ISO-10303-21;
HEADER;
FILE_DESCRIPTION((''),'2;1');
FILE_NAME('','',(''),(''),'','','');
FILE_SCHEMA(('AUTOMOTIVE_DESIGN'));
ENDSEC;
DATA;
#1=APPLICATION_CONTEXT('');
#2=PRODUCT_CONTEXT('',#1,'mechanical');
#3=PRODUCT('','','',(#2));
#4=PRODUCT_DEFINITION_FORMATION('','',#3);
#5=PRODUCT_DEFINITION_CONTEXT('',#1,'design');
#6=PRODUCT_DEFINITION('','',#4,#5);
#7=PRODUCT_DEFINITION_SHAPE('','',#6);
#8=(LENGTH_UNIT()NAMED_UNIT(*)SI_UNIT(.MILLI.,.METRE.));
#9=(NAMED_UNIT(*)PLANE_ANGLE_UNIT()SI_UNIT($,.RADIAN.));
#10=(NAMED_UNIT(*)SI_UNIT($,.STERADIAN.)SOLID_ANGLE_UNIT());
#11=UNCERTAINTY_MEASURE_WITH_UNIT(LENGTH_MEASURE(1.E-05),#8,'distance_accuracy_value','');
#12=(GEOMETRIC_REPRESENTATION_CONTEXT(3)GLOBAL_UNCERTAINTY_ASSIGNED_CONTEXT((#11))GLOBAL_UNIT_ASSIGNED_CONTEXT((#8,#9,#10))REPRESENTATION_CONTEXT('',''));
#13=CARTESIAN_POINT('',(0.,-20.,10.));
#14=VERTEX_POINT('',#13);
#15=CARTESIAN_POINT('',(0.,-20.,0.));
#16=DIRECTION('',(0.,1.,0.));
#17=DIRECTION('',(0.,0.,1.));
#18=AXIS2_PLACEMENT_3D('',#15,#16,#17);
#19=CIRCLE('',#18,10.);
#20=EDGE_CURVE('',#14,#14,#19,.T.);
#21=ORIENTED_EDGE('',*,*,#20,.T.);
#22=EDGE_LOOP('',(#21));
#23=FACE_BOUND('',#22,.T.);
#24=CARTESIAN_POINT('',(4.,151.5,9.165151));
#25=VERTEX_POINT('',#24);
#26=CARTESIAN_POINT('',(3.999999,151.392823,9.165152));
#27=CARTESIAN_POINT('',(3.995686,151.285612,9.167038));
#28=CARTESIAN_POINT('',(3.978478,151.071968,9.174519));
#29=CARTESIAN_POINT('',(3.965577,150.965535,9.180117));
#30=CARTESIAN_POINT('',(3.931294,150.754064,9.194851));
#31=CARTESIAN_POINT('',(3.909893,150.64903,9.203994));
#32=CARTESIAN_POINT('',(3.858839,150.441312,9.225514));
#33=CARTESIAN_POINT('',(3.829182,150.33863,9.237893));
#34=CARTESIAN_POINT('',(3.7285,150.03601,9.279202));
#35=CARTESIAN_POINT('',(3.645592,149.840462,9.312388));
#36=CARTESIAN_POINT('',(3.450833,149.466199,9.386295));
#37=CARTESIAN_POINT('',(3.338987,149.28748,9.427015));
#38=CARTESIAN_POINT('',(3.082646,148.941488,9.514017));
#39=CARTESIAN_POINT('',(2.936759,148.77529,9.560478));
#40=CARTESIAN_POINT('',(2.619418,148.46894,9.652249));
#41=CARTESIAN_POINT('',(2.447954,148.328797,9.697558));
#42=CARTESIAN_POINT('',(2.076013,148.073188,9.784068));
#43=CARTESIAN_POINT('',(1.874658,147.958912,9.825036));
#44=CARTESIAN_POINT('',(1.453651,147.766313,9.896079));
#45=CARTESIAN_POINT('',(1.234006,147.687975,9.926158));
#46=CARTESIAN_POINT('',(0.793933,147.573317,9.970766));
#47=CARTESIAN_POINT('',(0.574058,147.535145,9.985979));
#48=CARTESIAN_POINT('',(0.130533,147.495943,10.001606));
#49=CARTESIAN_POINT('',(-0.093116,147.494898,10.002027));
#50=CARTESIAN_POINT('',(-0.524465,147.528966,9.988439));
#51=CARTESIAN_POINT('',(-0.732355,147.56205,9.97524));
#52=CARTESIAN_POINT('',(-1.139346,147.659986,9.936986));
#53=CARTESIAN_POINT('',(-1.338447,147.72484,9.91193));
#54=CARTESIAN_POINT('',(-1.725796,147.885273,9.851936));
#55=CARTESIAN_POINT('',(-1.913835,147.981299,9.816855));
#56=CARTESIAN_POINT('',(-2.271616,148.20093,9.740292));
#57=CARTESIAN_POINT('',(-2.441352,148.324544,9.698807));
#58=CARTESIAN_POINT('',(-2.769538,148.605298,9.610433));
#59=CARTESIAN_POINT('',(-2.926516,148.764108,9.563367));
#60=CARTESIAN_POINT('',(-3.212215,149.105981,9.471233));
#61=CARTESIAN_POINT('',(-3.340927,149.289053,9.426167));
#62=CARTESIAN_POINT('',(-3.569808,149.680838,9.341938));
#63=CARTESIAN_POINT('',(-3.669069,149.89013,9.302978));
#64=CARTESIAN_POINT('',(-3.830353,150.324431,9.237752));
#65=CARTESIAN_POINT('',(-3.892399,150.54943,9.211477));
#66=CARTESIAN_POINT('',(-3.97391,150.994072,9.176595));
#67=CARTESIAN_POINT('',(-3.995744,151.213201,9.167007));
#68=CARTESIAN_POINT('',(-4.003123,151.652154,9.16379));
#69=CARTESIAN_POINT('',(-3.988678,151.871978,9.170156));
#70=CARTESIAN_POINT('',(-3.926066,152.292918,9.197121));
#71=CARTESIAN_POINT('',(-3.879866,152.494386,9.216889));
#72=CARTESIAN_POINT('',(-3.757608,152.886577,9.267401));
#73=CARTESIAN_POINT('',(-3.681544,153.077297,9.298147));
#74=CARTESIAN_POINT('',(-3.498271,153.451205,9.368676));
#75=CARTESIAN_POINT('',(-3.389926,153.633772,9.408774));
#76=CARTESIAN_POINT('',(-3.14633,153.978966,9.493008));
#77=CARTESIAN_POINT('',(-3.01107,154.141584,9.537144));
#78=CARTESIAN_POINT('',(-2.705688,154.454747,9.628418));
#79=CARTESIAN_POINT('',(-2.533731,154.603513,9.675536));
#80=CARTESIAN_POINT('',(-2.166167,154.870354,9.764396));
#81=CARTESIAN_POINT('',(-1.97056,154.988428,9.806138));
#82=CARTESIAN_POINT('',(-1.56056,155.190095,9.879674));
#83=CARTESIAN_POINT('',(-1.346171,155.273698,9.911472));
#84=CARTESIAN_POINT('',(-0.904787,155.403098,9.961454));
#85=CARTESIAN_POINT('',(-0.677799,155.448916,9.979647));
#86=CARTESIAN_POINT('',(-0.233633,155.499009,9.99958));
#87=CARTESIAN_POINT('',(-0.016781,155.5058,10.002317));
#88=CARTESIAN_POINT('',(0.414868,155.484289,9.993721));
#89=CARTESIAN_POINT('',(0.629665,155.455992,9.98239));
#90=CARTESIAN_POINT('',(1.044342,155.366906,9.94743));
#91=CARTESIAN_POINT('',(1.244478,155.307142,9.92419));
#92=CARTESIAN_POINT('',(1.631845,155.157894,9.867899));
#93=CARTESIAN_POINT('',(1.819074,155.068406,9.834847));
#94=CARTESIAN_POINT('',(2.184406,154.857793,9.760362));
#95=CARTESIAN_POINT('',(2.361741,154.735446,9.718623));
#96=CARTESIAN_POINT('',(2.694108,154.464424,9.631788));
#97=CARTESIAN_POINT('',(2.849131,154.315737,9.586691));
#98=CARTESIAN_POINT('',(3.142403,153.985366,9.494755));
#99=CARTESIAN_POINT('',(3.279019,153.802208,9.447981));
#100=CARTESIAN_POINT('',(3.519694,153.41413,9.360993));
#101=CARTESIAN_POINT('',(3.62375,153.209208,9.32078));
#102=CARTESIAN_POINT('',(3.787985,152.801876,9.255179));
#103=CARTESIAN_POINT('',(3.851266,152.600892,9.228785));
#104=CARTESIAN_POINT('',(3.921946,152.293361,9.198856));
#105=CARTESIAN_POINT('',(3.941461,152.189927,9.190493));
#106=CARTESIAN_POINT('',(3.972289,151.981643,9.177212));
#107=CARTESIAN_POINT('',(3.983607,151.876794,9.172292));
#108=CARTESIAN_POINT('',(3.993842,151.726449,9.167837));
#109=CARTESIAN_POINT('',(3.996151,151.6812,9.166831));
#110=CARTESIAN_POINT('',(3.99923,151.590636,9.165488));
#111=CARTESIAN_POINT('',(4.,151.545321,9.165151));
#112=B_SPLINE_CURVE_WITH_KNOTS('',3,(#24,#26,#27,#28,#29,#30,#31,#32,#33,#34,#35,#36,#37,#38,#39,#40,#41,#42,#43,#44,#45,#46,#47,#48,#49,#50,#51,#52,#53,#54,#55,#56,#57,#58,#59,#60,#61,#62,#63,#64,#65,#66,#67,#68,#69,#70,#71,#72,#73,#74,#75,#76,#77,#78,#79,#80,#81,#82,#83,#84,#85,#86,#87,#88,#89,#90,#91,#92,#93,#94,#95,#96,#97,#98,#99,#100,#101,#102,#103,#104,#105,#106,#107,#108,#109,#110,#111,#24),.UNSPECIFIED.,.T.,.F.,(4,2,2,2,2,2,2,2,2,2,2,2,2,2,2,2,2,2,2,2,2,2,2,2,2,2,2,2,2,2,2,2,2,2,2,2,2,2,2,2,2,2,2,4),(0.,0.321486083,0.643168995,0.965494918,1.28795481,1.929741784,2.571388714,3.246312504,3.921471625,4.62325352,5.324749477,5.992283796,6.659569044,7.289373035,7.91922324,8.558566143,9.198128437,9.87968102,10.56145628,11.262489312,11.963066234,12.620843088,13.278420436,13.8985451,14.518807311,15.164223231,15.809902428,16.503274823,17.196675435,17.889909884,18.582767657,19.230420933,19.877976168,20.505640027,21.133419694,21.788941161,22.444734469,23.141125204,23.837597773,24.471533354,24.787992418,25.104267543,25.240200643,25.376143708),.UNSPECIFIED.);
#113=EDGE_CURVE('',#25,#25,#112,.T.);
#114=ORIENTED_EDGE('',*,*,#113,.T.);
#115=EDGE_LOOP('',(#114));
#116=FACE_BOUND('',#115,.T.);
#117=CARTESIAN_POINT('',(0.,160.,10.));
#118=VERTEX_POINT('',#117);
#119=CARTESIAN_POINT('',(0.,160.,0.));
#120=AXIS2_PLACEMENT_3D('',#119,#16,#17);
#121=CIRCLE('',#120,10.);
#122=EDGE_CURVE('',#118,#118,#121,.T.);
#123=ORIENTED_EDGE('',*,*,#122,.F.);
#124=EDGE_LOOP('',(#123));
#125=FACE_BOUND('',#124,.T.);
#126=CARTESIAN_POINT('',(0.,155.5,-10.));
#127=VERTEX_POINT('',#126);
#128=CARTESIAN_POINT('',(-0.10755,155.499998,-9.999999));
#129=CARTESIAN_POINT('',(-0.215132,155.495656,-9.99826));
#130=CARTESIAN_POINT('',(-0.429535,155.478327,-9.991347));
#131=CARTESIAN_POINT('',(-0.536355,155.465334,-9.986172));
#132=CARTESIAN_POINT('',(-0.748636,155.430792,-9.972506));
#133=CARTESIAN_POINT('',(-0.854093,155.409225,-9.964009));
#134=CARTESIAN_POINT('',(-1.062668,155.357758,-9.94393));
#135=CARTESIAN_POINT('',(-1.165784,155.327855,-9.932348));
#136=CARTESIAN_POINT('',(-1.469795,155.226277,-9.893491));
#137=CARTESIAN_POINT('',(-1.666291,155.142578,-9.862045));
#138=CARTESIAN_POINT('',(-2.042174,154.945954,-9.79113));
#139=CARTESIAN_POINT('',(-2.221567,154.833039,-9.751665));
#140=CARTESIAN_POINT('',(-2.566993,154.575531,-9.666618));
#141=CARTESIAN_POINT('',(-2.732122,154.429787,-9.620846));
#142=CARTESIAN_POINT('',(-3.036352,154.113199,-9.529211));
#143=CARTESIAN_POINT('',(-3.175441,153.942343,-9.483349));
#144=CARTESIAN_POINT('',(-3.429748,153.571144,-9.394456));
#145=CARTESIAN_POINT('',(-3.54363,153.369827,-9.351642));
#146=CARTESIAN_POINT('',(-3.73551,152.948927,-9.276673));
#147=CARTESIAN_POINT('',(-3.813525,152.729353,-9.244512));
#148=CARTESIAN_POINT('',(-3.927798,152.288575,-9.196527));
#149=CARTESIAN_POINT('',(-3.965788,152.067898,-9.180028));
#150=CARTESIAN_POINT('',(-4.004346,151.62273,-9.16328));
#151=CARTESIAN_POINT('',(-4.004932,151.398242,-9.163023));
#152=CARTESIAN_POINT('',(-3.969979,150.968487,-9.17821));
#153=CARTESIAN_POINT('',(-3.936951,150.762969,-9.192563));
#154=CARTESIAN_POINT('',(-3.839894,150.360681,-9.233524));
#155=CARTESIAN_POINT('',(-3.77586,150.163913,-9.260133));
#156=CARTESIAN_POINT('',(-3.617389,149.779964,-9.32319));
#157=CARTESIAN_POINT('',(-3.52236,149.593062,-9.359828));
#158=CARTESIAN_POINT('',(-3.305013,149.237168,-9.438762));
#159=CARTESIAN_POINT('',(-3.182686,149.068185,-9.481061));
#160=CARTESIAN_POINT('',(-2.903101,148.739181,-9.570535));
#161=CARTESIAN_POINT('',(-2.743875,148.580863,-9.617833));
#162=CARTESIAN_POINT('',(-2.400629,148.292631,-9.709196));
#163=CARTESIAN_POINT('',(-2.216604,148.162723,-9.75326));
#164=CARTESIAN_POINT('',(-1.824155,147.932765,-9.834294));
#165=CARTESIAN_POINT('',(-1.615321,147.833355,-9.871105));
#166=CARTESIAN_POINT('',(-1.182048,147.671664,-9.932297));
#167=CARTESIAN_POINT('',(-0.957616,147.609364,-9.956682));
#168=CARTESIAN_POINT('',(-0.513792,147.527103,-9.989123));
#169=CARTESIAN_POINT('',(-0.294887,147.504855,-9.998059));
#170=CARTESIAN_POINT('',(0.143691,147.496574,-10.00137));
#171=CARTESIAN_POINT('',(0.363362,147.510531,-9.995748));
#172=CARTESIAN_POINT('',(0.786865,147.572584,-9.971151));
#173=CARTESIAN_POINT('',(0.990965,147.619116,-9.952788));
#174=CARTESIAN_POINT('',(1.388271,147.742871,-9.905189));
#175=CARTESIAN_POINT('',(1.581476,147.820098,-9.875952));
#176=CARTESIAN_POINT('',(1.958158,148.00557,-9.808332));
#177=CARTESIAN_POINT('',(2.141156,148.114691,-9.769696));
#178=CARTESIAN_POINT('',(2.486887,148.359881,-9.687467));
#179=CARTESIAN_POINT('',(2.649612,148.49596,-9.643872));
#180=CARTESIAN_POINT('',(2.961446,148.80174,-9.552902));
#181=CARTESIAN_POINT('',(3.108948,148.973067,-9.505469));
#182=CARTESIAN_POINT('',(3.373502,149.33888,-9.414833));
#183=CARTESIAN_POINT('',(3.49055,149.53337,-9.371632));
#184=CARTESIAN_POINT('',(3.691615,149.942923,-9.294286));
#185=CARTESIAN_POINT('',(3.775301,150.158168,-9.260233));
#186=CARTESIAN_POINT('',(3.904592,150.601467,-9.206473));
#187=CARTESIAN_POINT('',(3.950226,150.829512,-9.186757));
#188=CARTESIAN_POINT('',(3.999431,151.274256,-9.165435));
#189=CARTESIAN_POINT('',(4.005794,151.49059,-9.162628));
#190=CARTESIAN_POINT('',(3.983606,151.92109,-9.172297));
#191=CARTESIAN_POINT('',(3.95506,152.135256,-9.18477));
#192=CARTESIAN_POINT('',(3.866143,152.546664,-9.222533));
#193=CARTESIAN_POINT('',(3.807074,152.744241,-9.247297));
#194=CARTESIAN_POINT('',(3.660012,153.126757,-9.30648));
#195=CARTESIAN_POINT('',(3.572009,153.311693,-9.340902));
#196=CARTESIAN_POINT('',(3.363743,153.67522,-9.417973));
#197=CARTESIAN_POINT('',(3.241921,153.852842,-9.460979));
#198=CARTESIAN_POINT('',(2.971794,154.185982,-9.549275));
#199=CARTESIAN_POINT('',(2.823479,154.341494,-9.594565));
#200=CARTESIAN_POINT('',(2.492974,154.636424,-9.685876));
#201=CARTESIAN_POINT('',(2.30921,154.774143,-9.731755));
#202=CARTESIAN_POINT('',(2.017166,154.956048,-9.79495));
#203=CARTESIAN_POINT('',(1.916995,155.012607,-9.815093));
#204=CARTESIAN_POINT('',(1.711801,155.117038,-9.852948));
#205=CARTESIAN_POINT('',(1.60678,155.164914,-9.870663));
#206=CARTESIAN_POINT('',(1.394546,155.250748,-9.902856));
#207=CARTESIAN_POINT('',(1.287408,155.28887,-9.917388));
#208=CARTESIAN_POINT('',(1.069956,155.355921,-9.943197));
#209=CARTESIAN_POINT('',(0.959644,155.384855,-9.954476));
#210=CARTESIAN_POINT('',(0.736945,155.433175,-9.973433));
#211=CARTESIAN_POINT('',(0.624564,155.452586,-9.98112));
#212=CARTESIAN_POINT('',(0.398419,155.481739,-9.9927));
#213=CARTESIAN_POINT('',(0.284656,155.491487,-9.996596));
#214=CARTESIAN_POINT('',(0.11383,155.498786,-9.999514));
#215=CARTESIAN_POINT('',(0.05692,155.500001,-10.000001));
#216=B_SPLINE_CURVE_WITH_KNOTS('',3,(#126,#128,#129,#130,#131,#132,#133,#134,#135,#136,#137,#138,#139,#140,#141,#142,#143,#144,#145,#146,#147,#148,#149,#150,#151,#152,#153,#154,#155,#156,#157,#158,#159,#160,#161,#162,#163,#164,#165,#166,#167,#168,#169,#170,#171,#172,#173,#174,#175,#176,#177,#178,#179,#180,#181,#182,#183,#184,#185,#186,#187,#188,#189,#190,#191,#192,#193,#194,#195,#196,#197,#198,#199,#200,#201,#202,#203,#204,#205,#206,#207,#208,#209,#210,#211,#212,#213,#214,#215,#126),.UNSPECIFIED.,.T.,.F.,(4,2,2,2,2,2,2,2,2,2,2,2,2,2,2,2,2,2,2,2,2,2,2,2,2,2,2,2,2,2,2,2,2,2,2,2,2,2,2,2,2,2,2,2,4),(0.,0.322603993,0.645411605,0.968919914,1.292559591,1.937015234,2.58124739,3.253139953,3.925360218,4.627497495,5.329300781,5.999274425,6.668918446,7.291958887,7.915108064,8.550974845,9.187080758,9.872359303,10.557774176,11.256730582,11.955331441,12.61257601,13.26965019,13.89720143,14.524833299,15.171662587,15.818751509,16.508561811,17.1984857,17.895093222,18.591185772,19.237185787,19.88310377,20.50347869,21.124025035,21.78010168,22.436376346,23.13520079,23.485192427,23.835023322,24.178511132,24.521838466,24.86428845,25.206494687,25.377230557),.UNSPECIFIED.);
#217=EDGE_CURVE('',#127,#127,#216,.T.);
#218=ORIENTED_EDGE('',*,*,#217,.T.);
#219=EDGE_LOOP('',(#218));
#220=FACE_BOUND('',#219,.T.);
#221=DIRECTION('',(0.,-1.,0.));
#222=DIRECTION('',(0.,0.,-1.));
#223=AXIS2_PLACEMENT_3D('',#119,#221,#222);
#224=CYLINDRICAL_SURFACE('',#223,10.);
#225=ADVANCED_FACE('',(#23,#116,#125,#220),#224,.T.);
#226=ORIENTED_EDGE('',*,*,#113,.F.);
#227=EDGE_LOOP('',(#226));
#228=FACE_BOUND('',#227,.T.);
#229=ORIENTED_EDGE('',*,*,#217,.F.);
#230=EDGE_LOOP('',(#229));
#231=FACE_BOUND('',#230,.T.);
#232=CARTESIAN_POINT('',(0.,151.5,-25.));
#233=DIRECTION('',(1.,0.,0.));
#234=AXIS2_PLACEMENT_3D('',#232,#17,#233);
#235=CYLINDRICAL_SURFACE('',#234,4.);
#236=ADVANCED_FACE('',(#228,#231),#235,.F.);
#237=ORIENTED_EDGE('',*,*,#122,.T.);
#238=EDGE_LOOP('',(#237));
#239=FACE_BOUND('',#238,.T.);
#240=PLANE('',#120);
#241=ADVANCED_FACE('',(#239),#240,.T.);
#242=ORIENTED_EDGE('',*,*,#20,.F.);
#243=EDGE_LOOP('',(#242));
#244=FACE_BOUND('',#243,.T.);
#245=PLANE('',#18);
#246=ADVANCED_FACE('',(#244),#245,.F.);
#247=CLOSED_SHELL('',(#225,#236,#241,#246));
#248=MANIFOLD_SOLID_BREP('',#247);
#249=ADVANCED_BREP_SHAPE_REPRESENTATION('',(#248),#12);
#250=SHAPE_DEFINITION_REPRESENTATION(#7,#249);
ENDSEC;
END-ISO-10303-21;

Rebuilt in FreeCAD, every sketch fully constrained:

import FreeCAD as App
import Part
import Sketcher

V = App.Vector

doc = App.newDocument("Part")
body = doc.addObject("PartDesign::Body", "Body")

# Sketch on XZ plane
sketch1 = body.newObject("Sketcher::SketchObject", "Sketch")
sketch1.AttachmentSupport = (doc.getObject("XZ_Plane"), [""])
sketch1.MapMode = "FlatFace"
sketch1.AttachmentOffset = App.Placement(V(0, 0, 20), App.Rotation())
sketch1.addGeometry(Part.Circle(V(0, 0, 0), V(0, 0, 1), 10), False)
sketch1.addConstraint(Sketcher.Constraint("Coincident", 0, 3, -1, 1))
sketch1.addConstraint(Sketcher.Constraint("Diameter", 0, 20.0))
pad1 = body.newObject("PartDesign::Pad", "Pad")
pad1.Profile = sketch1
pad1.Length = 180
pad1.Reversed = True

# Sketch on XY plane
sketch2 = body.newObject("Sketcher::SketchObject", "Sketch001")
sketch2.AttachmentSupport = (doc.getObject("XY_Plane"), [""])
sketch2.MapMode = "FlatFace"
sketch2.addGeometry(Part.Circle(V(0, 151.5, 0), V(0, 0, 1), 4), False)
sketch2.addConstraint(Sketcher.Constraint("PointOnObject", 0, 3, -2))
sketch2.addConstraint(Sketcher.Constraint("Diameter", 0, 8.0))
sketch2.addConstraint(Sketcher.Constraint("DistanceY", -1, 1, 0, 3, 151.5))
pocket1 = body.newObject("PartDesign::Pocket", "Pocket")
pocket1.Profile = sketch2
pocket1.Length = 50
pocket1.Midplane = True

doc.recompute()
